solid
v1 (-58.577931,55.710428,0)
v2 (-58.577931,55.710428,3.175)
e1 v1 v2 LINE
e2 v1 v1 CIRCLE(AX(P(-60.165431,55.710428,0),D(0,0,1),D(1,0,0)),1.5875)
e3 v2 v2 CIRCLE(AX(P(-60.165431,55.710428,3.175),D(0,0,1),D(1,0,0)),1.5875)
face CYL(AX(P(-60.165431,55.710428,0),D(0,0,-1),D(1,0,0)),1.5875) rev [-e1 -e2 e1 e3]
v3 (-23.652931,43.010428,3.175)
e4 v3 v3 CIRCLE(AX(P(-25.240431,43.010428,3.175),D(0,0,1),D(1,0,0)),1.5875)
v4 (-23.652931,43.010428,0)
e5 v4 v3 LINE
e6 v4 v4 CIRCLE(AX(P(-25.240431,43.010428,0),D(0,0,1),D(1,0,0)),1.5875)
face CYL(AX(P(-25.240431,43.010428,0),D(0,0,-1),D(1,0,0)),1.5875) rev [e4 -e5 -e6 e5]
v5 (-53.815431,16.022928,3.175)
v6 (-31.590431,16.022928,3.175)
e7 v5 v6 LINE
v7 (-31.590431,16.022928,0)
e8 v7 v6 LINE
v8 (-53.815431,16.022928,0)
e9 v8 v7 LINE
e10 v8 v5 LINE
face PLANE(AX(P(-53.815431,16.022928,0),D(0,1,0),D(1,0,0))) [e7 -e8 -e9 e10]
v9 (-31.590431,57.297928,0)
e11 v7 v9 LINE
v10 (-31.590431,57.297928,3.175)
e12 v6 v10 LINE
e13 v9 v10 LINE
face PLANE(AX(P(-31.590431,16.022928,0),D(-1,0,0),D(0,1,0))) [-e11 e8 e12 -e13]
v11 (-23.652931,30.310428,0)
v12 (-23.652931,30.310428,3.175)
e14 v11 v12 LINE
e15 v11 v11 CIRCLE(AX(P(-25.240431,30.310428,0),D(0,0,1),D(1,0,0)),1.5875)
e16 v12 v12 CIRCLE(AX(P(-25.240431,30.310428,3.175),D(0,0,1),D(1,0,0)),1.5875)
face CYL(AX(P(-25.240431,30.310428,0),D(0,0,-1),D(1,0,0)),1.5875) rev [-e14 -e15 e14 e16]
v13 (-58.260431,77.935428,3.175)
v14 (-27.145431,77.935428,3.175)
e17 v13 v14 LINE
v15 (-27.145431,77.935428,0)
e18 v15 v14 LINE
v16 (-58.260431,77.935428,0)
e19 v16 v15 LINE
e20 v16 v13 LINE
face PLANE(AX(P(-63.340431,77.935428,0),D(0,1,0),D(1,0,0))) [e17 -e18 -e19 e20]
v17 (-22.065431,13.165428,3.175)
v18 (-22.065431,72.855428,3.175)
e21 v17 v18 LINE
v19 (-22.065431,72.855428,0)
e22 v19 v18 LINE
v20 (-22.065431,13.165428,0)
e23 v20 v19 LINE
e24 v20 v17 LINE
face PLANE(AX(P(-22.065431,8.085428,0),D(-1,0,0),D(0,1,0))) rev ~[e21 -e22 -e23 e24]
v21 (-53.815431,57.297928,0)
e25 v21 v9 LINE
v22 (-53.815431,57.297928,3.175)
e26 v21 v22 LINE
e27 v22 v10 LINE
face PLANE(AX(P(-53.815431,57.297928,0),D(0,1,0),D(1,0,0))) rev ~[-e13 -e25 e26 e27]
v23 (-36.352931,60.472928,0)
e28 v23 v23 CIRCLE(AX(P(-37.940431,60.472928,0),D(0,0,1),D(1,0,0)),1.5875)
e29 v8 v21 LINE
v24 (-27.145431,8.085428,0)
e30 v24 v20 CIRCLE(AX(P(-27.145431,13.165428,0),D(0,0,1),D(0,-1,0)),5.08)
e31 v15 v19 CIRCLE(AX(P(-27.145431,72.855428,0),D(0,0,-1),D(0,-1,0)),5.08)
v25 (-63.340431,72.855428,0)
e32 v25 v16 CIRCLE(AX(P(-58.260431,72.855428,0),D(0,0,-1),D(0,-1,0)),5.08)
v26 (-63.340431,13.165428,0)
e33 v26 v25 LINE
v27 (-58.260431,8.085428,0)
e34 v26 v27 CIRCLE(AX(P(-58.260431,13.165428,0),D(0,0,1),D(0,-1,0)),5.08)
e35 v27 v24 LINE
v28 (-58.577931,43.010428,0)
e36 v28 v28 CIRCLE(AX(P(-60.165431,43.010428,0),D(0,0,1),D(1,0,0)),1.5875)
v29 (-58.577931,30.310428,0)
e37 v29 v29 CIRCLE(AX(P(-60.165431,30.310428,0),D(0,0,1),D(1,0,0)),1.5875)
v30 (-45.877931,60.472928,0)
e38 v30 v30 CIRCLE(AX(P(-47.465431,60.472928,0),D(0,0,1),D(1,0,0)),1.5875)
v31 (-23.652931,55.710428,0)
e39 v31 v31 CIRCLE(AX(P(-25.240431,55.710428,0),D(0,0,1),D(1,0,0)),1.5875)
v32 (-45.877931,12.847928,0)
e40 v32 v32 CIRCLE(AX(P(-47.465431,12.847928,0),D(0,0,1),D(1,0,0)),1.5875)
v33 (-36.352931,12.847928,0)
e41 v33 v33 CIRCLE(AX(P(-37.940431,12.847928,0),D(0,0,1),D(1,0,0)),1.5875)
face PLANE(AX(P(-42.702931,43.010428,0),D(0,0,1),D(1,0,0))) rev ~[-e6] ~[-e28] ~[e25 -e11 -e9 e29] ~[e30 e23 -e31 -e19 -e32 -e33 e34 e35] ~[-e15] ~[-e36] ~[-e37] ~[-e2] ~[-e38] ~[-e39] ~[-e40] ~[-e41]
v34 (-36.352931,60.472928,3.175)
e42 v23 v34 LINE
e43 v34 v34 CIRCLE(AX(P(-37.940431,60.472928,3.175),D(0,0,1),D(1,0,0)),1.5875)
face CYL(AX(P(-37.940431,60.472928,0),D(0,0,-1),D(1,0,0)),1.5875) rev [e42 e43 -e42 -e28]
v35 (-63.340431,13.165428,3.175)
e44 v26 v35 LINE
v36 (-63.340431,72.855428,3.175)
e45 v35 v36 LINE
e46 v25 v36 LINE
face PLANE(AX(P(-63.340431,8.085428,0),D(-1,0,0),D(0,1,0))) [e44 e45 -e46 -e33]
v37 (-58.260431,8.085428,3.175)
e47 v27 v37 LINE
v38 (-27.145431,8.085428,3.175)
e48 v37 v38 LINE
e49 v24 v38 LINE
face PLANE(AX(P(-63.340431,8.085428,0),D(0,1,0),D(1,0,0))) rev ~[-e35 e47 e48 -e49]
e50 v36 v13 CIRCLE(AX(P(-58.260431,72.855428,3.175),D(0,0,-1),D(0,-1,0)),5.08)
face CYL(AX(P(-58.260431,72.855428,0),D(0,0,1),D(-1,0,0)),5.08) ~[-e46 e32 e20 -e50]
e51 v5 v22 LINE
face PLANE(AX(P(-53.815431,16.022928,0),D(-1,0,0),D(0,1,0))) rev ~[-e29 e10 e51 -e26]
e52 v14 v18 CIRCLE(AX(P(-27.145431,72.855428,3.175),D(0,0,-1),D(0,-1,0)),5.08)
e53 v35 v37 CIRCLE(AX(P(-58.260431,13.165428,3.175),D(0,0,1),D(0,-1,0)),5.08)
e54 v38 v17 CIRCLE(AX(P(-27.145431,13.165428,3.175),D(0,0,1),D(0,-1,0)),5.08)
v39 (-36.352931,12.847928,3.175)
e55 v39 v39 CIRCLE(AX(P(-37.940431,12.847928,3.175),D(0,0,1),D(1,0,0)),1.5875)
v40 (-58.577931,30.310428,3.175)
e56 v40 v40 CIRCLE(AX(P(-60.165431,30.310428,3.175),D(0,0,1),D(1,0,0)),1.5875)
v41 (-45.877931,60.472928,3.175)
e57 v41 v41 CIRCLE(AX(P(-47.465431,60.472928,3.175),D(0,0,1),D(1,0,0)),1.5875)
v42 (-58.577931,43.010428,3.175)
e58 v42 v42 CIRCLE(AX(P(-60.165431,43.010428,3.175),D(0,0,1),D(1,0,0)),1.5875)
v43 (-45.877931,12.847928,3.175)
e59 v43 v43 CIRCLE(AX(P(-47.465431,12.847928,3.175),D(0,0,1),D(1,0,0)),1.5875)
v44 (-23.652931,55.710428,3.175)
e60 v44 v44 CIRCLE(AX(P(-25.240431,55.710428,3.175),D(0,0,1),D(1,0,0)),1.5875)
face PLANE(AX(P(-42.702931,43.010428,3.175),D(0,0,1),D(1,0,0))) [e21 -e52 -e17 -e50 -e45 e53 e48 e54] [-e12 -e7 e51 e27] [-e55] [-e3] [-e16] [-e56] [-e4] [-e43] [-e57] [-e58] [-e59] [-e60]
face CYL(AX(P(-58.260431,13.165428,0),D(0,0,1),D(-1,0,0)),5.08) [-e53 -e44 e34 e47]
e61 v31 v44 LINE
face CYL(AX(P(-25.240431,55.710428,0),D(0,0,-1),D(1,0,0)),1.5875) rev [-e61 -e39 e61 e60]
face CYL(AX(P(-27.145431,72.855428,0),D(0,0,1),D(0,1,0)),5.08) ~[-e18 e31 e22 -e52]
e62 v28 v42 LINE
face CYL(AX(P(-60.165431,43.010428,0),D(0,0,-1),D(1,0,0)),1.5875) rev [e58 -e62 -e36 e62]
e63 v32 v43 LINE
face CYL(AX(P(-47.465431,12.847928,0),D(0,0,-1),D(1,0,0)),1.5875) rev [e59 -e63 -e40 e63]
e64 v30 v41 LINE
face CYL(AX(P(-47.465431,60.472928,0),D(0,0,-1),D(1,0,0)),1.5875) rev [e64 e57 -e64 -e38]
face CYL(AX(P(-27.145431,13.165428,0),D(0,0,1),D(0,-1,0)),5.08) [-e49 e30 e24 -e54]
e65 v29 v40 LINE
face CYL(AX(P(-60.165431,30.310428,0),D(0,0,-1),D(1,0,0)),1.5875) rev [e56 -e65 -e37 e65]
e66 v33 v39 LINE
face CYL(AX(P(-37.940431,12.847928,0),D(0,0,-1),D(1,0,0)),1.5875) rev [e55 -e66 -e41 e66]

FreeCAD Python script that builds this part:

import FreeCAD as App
import Part
import Sketcher
from FreeCAD import Vector
Q = App.Units.Quantity


def edges_at(feature, points):
    """Names of the edges that pass closest to the given points."""
    edges = feature.Shape.Edges
    near = lambda p: min(range(len(edges)), key=lambda i: edges[i].distToShape(Part.Vertex(*p))[0])
    return sorted({f"Edge{near(p) + 1}" for p in points})

doc = App.newDocument("Part")
params = doc.addObject("Spreadsheet::Sheet", "Params")
for row, (alias, value) in enumerate([
    ("sketch1_diameter", "0.125 in"),
    ("sketch1_height", "2.75 in"),
    ("sketch1_width", "1.625 in"),
    ("sketch1_width2", "0.875 in"),
    ("pad1_length", "0.125 in"),
    ("fillet_radius", "0.2 in"),
], start=1):
    params.set(f"A{row}", alias)
    params.set(f"B{row}", "=" + value)
    params.setAlias(f"B{row}", alias)

body = doc.addObject("PartDesign::Body", "Body")

# Sketch on XY plane
sketch1 = body.newObject("Sketcher::SketchObject", "Sketch")
sketch1.AttachmentSupport = (doc.getObject("XY_Plane"), [""])
sketch1.MapMode = "FlatFace"
sketch1.addGeometry(Part.LineSegment(Vector(-63.3, 77.9, 0), Vector(-63.3, 8.1, 0)), False)
sketch1.addGeometry(Part.LineSegment(Vector(-63.3, 8.1, 0), Vector(-22.1, 8.1, 0)), False)
sketch1.addGeometry(Part.LineSegment(Vector(-22.1, 8.1, 0), Vector(-22.1, 77.9, 0)), False)
sketch1.addGeometry(Part.LineSegment(Vector(-22.1, 77.9, 0), Vector(-63.3, 77.9, 0)), False)
sketch1.addGeometry(Part.Circle(Vector(-47.5, 12.8, 0), Vector(0, 0, 1), 1.6), False)
sketch1.addGeometry(Part.Circle(Vector(-60.2, 30.3, 0), Vector(0, 0, 1), 1.6), False)
sketch1.addGeometry(Part.Circle(Vector(-37.9, 12.8, 0), Vector(0, 0, 1), 1.6), False)
sketch1.addGeometry(Part.Circle(Vector(-25.2, 30.3, 0), Vector(0, 0, 1), 1.6), False)
sketch1.addGeometry(Part.Circle(Vector(-60.2, 43, 0), Vector(0, 0, 1), 1.6), False)
sketch1.addGeometry(Part.Circle(Vector(-60.2, 55.7, 0), Vector(0, 0, 1), 1.6), False)
sketch1.addGeometry(Part.Circle(Vector(-47.5, 60.5, 0), Vector(0, 0, 1), 1.6), False)
sketch1.addGeometry(Part.LineSegment(Vector(-31.6, 16, 0), Vector(-53.8, 16, 0)), False)
sketch1.addGeometry(Part.LineSegment(Vector(-53.8, 16, 0), Vector(-53.8, 57.3, 0)), False)
sketch1.addGeometry(Part.LineSegment(Vector(-53.8, 57.3, 0), Vector(-31.6, 57.3, 0)), False)
sketch1.addGeometry(Part.LineSegment(Vector(-31.6, 57.3, 0), Vector(-31.6, 16, 0)), False)
sketch1.addGeometry(Part.Circle(Vector(-25.2, 43, 0), Vector(0, 0, 1), 1.6), False)
sketch1.addGeometry(Part.Circle(Vector(-37.9, 60.5, 0), Vector(0, 0, 1), 1.6), False)
sketch1.addGeometry(Part.Circle(Vector(-25.2, 55.7, 0), Vector(0, 0, 1), 1.6), False)
sketch1.addConstraint(Sketcher.Constraint("Coincident", 0, 2, 1, 1))
sketch1.addConstraint(Sketcher.Constraint("Coincident", 1, 2, 2, 1))
sketch1.addConstraint(Sketcher.Constraint("Coincident", 2, 2, 3, 1))
sketch1.addConstraint(Sketcher.Constraint("Coincident", 3, 2, 0, 1))
sketch1.addConstraint(Sketcher.Constraint("Coincident", 11, 2, 12, 1))
sketch1.addConstraint(Sketcher.Constraint("Coincident", 12, 2, 13, 1))
sketch1.addConstraint(Sketcher.Constraint("Coincident", 13, 2, 14, 1))
sketch1.addConstraint(Sketcher.Constraint("Coincident", 14, 2, 11, 1))
sketch1.addConstraint(Sketcher.Constraint("Vertical", 0))
sketch1.addConstraint(Sketcher.Constraint("Horizontal", 1))
sketch1.addConstraint(Sketcher.Constraint("Vertical", 2))
sketch1.addConstraint(Sketcher.Constraint("Horizontal", 3))
sketch1.addConstraint(Sketcher.Constraint("Horizontal", 11))
sketch1.addConstraint(Sketcher.Constraint("Vertical", 12))
sketch1.addConstraint(Sketcher.Constraint("Horizontal", 13))
sketch1.addConstraint(Sketcher.Constraint("Vertical", 14))
sketch1.addConstraint(Sketcher.Constraint("Equal", 4, 5))
sketch1.addConstraint(Sketcher.Constraint("Equal", 5, 6))
sketch1.addConstraint(Sketcher.Constraint("Equal", 6, 7))
sketch1.addConstraint(Sketcher.Constraint("Equal", 7, 8))
sketch1.addConstraint(Sketcher.Constraint("Equal", 8, 9))
sketch1.addConstraint(Sketcher.Constraint("Equal", 9, 10))
sketch1.addConstraint(Sketcher.Constraint("Equal", 10, 15))
sketch1.addConstraint(Sketcher.Constraint("Equal", 15, 16))
sketch1.addConstraint(Sketcher.Constraint("Equal", 16, 17))
sketch1.addConstraint(Sketcher.Constraint("Horizontal", 4, 3, 6, 3))
sketch1.addConstraint(Sketcher.Constraint("Horizontal", 5, 3, 7, 3))
sketch1.addConstraint(Sketcher.Constraint("Horizontal", 8, 3, 15, 3))
sketch1.addConstraint(Sketcher.Constraint("Horizontal", 10, 3, 16, 3))
sketch1.addConstraint(Sketcher.Constraint("Horizontal", 9, 3, 17, 3))
sketch1.addConstraint(Sketcher.Constraint("Vertical", 5, 3, 8, 3))
sketch1.addConstraint(Sketcher.Constraint("Vertical", 8, 3, 9, 3))
sketch1.addConstraint(Sketcher.Constraint("Vertical", 4, 3, 10, 3))
sketch1.addConstraint(Sketcher.Constraint("Vertical", 7, 3, 15, 3))
sketch1.addConstraint(Sketcher.Constraint("Vertical", 6, 3, 16, 3))
sketch1.addConstraint(Sketcher.Constraint("Vertical", 15, 3, 17, 3))
sketch1.addConstraint(Sketcher.Constraint("Equal", 3, 12))
sketch1.addConstraint(Sketcher.Constraint("Diameter", 4, Q("0.125 in")))
sketch1.addConstraint(Sketcher.Constraint("DistanceY", 5, 3, 9, 3, Q("1 in")))
sketch1.addConstraint(Sketcher.Constraint("DistanceX", 0, 2, 6, 3, Q("1 in")))
sketch1.addConstraint(Sketcher.Constraint("DistanceX", 4, 3, 1, 2, Q("1 in")))
sketch1.addConstraint(Sketcher.Constraint("DistanceY", 0, 2, 0, 1, Q("2.75 in")))
sketch1.addConstraint(Sketcher.Constraint("DistanceX", 5, 3, 4, 3, Q("0.5 in")))
sketch1.addConstraint(Sketcher.Constraint("DistanceX", 6, 3, 7, 3, Q("0.5 in")))
sketch1.addConstraint(Sketcher.Constraint("DistanceY", 5, 3, 8, 3, Q("0.5 in")))
sketch1.addConstraint(Sketcher.Constraint("DistanceX", 1, 1, 1, 2, Q("1.625 in")))
sketch1.addConstraint(Sketcher.Constraint("DistanceX", 11, 2, 11, 1, Q("0.875 in")))
sketch1.addConstraint(Sketcher.Constraint("DistanceX", 11, 2, 4, 3, Q("0.25 in")))
sketch1.addConstraint(Sketcher.Constraint("DistanceY", 4, 3, 5, 3, Q("0.6875 in")))
sketch1.addConstraint(Sketcher.Constraint("DistanceY", 9, 3, 10, 3, Q("0.1875 in")))
sketch1.addConstraint(Sketcher.Constraint("DistanceY", 0, 2, 4, 3, Q("0.1875 in")))
sketch1.addConstraint(Sketcher.Constraint("DistanceY", 4, 3, 11, 2, Q("0.125 in")))
sketch1.addConstraint(Sketcher.Constraint("DistanceX", 4, 3, -1, 1, Q("47.465431 mm")))
sketch1.addConstraint(Sketcher.Constraint("DistanceY", -1, 1, 5, 3, Q("30.310428 mm")))
sketch1.setExpression("Constraints[37]", "Params.sketch1_diameter")
sketch1.setExpression("Constraints[41]", "Params.sketch1_height")
sketch1.setExpression("Constraints[45]", "Params.sketch1_width")
sketch1.setExpression("Constraints[46]", "Params.sketch1_width2")
pad1 = body.newObject("PartDesign::Pad", "Pad")
pad1.Profile = sketch1
pad1.setExpression("Length", "Params.pad1_length")
doc.recompute()

fillet = body.newObject("PartDesign::Fillet", "Fillet")
fillet.Base = (pad1, edges_at(pad1, [
    (-22.065, 77.935, 1.587),
    (-63.34, 77.935, 1.587),
    (-63.34, 8.085, 1.587),
    (-22.065, 8.085, 1.587),
]))
fillet.setExpression("Radius", "Params.fillet_radius")

doc.recompute()
